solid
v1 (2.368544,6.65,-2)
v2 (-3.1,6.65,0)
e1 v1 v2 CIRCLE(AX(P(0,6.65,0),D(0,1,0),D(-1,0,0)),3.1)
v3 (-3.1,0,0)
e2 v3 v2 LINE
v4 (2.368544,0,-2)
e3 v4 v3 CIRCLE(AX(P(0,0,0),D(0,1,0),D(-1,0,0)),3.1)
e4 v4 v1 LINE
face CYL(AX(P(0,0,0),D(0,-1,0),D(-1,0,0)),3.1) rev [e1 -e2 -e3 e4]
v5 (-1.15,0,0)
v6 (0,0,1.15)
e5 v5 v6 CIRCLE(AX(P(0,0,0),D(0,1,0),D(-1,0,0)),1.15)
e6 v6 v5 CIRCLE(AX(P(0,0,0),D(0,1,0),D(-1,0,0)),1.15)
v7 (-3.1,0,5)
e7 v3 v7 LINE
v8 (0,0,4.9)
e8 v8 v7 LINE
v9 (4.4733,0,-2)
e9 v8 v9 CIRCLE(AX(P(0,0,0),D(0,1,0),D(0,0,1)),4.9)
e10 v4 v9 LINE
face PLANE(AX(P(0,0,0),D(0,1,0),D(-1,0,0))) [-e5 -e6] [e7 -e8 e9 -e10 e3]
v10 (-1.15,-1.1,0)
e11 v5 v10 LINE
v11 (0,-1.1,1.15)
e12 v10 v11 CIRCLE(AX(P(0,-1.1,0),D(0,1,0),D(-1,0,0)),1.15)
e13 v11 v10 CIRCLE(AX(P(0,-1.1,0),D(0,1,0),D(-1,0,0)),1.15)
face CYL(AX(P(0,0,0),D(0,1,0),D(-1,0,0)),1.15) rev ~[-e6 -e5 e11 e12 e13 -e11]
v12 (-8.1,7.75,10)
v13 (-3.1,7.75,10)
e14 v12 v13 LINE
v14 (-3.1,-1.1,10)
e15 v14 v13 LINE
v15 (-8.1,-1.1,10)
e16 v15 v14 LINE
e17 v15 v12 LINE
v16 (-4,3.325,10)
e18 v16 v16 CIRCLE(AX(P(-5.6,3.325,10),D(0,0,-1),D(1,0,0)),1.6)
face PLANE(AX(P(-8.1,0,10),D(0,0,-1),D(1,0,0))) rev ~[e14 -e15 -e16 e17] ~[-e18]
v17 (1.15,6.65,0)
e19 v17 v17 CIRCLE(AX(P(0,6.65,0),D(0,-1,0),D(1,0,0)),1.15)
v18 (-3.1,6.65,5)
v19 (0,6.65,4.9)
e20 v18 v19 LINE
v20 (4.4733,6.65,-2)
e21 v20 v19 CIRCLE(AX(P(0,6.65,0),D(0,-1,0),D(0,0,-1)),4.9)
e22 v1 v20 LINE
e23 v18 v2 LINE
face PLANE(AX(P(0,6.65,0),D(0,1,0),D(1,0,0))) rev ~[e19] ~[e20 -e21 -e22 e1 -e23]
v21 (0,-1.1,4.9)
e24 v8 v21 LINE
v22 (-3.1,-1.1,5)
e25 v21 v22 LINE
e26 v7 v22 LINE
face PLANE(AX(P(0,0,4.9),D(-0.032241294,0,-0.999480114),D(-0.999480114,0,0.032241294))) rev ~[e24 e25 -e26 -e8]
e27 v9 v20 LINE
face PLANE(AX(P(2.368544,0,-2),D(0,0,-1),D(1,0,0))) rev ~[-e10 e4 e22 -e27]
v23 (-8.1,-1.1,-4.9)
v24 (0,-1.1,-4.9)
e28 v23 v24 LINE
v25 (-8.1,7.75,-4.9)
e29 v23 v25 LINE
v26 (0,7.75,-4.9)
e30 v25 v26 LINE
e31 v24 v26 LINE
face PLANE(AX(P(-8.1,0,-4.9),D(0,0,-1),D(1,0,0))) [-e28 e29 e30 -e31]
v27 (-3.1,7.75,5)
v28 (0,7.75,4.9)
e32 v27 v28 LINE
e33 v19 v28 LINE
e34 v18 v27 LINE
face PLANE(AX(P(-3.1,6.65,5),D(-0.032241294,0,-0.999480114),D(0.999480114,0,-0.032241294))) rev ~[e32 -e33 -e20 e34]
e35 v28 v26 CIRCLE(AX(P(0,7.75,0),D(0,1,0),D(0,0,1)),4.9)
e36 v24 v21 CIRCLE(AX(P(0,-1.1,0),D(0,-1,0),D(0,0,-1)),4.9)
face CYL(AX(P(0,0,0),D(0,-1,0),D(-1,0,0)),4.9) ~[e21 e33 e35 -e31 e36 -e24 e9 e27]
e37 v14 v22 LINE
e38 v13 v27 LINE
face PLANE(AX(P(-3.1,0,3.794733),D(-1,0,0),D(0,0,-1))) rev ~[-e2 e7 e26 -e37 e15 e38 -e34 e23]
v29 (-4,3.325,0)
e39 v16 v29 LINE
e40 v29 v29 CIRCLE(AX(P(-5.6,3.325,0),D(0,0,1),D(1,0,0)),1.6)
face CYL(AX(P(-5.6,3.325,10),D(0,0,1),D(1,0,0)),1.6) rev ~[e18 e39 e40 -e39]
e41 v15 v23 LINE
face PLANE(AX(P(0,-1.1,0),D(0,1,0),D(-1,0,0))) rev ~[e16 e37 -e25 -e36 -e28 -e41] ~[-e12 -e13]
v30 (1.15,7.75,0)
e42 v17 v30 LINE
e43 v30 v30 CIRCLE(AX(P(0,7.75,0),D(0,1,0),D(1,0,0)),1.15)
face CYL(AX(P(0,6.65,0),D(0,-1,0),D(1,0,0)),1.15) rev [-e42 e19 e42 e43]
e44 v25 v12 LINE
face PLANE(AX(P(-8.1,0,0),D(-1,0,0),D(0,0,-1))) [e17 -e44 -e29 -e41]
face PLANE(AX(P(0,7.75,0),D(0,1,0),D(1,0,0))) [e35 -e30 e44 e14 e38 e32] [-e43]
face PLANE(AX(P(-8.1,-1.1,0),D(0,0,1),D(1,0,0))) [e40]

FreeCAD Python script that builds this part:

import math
import FreeCAD as App
import Part
import Sketcher
from FreeCAD import Vector
Q = App.Units.Quantity

doc = App.newDocument("Part")
body = doc.addObject("PartDesign::Body", "Body")

sketch1 = body.newObject("Sketcher::SketchObject", "Sketch")
sketch1.AttachmentSupport = (doc.getObject("XZ_Plane"), [""])
sketch1.MapMode = "FlatFace"
sketch1.addGeometry(Part.ArcOfCircle(Part.Circle(Vector(0, 0, 0), Vector(0, 0, 1), 4.9), math.radians(-90), math.radians(-24)), False)
sketch1.addGeometry(Part.LineSegment(Vector(0, -4.9, 0), Vector(-8.1, -4.9, 0)), False)
sketch1.addGeometry(Part.LineSegment(Vector(-8.1, -4.9, 0), Vector(-8.1, 10, 0)), False)
sketch1.addGeometry(Part.LineSegment(Vector(-8.1, 10, 0), Vector(-3.1, 10, 0)), False)
sketch1.addGeometry(Part.LineSegment(Vector(-3.1, 10, 0), Vector(-3.1, 0, 0)), False)
sketch1.addGeometry(Part.ArcOfCircle(Part.Circle(Vector(0, 0, 0), Vector(0, 0, 1), 3.1), math.radians(180), math.radians(320)), False)
sketch1.addGeometry(Part.LineSegment(Vector(2.4, -2, 0), Vector(4.5, -2, 0)), False)
sketch1.addConstraint(Sketcher.Constraint("Tangent", 0, 1, 1, 1))
sketch1.addConstraint(Sketcher.Constraint("Coincident", 1, 2, 2, 1))
sketch1.addConstraint(Sketcher.Constraint("Coincident", 2, 2, 3, 1))
sketch1.addConstraint(Sketcher.Constraint("Coincident", 3, 2, 4, 1))
sketch1.addConstraint(Sketcher.Constraint("Tangent", 4, 2, 5, 1))
sketch1.addConstraint(Sketcher.Constraint("Coincident", 5, 2, 6, 1))
sketch1.addConstraint(Sketcher.Constraint("Coincident", 6, 2, 0, 2))
sketch1.addConstraint(Sketcher.Constraint("Horizontal", 1))
sketch1.addConstraint(Sketcher.Constraint("Vertical", 2))
sketch1.addConstraint(Sketcher.Constraint("Horizontal", 3))
sketch1.addConstraint(Sketcher.Constraint("Vertical", 4))
sketch1.addConstraint(Sketcher.Constraint("Horizontal", 6))
sketch1.addConstraint(Sketcher.Constraint("Coincident", 0, 3, -1, 1))
sketch1.addConstraint(Sketcher.Constraint("Coincident", 5, 3, -1, 1))
sketch1.addConstraint(Sketcher.Constraint("Radius", 0, Q("4.9 mm")))
sketch1.addConstraint(Sketcher.Constraint("Radius", 5, Q("3.1 mm")))
sketch1.addConstraint(Sketcher.Constraint("DistanceX", 3, 1, 3, 2, Q("5 mm")))
sketch1.addConstraint(Sketcher.Constraint("DistanceY", 4, 2, 4, 1, Q("10 mm")))
sketch1.addConstraint(Sketcher.Constraint("DistanceY", 5, 2, -1, 1, Q("2 mm")))
pad1 = body.newObject("PartDesign::Pad", "Pad")
pad1.Profile = sketch1
pad1.Length = 6.65
pad1.Reversed = True

sketch2 = body.newObject("Sketcher::SketchObject", "Sketch001")
sketch2.AttachmentSupport = (doc.getObject("XZ_Plane"), [""])
sketch2.MapMode = "FlatFace"
sketch2.addGeometry(Part.LineSegment(Vector(0, -4.9, 0), Vector(-8.1, -4.9, 0)), False)
sketch2.addGeometry(Part.LineSegment(Vector(-8.1, -4.9, 0), Vector(-8.1, 10, 0)), False)
sketch2.addGeometry(Part.LineSegment(Vector(-8.1, 10, 0), Vector(-3.1, 10, 0)), False)
sketch2.addGeometry(Part.LineSegment(Vector(-3.1, 10, 0), Vector(-3.1, 5, 0)), False)
sketch2.addGeometry(Part.LineSegment(Vector(-3.1, 5, 0), Vector(0, 4.9, 0)), False)
sketch2.addGeometry(Part.ArcOfCircle(Part.Circle(Vector(0, 0, 0), Vector(0, 0, 1), 4.9), math.radians(-90), math.radians(90)), False)
sketch2.addGeometry(Part.Circle(Vector(0, 0, 0), Vector(0, 0, 1), 1.1), False)
sketch2.addConstraint(Sketcher.Constraint("Coincident", 0, 2, 1, 1))
sketch2.addConstraint(Sketcher.Constraint("Coincident", 1, 2, 2, 1))
sketch2.addConstraint(Sketcher.Constraint("Coincident", 2, 2, 3, 1))
sketch2.addConstraint(Sketcher.Constraint("Coincident", 3, 2, 4, 1))
sketch2.addConstraint(Sketcher.Constraint("Coincident", 4, 2, 5, 2))
sketch2.addConstraint(Sketcher.Constraint("Tangent", 5, 1, 0, 1))
sketch2.addConstraint(Sketcher.Constraint("Horizontal", 0))
sketch2.addConstraint(Sketcher.Constraint("Vertical", 1))
sketch2.addConstraint(Sketcher.Constraint("Horizontal", 2))
sketch2.addConstraint(Sketcher.Constraint("Vertical", 3))
sketch2.addConstraint(Sketcher.Constraint("Coincident", 5, 3, -1, 1))
sketch2.addConstraint(Sketcher.Constraint("Coincident", 6, 3, -1, 1))
sketch2.addConstraint(Sketcher.Constraint("PointOnObject", 4, 2, -2))
sketch2.addConstraint(Sketcher.Constraint("Equal", 2, 3))
sketch2.addConstraint(Sketcher.Constraint("Diameter", 6, Q("2.3 mm")))
sketch2.addConstraint(Sketcher.Constraint("Radius", 5, Q("4.9 mm")))
sketch2.addConstraint(Sketcher.Constraint("DistanceX", 2, 1, 2, 2, Q("5 mm")))
sketch2.addConstraint(Sketcher.Constraint("DistanceY", -1, 1, 1, 2, Q("10 mm")))
sketch2.addConstraint(Sketcher.Constraint("DistanceX", 0, 2, 0, 1, Q("8.1 mm")))
pad2 = body.newObject("PartDesign::Pad", "Pad001")
pad2.Profile = sketch2
pad2.Length = 1.1

sketch3 = body.newObject("Sketcher::SketchObject", "Sketch002")
sketch3.AttachmentSupport = (doc.getObject("XZ_Plane"), [""])
sketch3.MapMode = "FlatFace"
sketch3.AttachmentOffset = App.Placement(Vector(0, 0, -6.65), App.Rotation())
sketch3.addGeometry(Part.LineSegment(Vector(0, -4.9, 0), Vector(-8.1, -4.9, 0)), False)
sketch3.addGeometry(Part.LineSegment(Vector(-8.1, -4.9, 0), Vector(-8.1, 10, 0)), False)
sketch3.addGeometry(Part.LineSegment(Vector(-8.1, 10, 0), Vector(-3.1, 10, 0)), False)
sketch3.addGeometry(Part.LineSegment(Vector(-3.1, 10, 0), Vector(-3.1, 5, 0)), False)
sketch3.addGeometry(Part.LineSegment(Vector(-3.1, 5, 0), Vector(0, 4.9, 0)), False)
sketch3.addGeometry(Part.ArcOfCircle(Part.Circle(Vector(0, 0, 0), Vector(0, 0, 1), 4.9), math.radians(-90), math.radians(90)), False)
sketch3.addGeometry(Part.Circle(Vector(0, 0, 0), Vector(0, 0, 1), 1.1), False)
sketch3.addConstraint(Sketcher.Constraint("Coincident", 0, 2, 1, 1))
sketch3.addConstraint(Sketcher.Constraint("Coincident", 1, 2, 2, 1))
sketch3.addConstraint(Sketcher.Constraint("Coincident", 2, 2, 3, 1))
sketch3.addConstraint(Sketcher.Constraint("Coincident", 3, 2, 4, 1))
sketch3.addConstraint(Sketcher.Constraint("Coincident", 4, 2, 5, 2))
sketch3.addConstraint(Sketcher.Constraint("Tangent", 5, 1, 0, 1))
sketch3.addConstraint(Sketcher.Constraint("Horizontal", 0))
sketch3.addConstraint(Sketcher.Constraint("Vertical", 1))
sketch3.addConstraint(Sketcher.Constraint("Horizontal", 2))
sketch3.addConstraint(Sketcher.Constraint("Vertical", 3))
sketch3.addConstraint(Sketcher.Constraint("Coincident", 5, 3, -1, 1))
sketch3.addConstraint(Sketcher.Constraint("Coincident", 6, 3, -1, 1))
sketch3.addConstraint(Sketcher.Constraint("PointOnObject", 4, 2, -2))
sketch3.addConstraint(Sketcher.Constraint("Equal", 2, 3))
sketch3.addConstraint(Sketcher.Constraint("Diameter", 6, Q("2.3 mm")))
sketch3.addConstraint(Sketcher.Constraint("Radius", 5, Q("4.9 mm")))
sketch3.addConstraint(Sketcher.Constraint("DistanceX", 2, 1, 2, 2, Q("5 mm")))
sketch3.addConstraint(Sketcher.Constraint("DistanceY", -1, 1, 1, 2, Q("10 mm")))
sketch3.addConstraint(Sketcher.Constraint("DistanceX", 0, 2, 0, 1, Q("8.1 mm")))
pad3 = body.newObject("PartDesign::Pad", "Pad002")
pad3.Profile = sketch3
pad3.Length = 1.1
pad3.Reversed = True

sketch4 = body.newObject("Sketcher::SketchObject", "Sketch003")
sketch4.AttachmentSupport = (doc.getObject("XY_Plane"), [""])
sketch4.MapMode = "FlatFace"
sketch4.AttachmentOffset = App.Placement(Vector(0, 0, 10), App.Rotation())
sketch4.addGeometry(Part.Circle(Vector(-5.6, 3.3, 0), Vector(0, 0, 1), 1.6), False)
sketch4.addConstraint(Sketcher.Constraint("Diameter", 0, Q("3.2 mm")))
sketch4.addConstraint(Sketcher.Constraint("DistanceX", 0, 3, -1, 1, Q("5.6 mm")))
sketch4.addConstraint(Sketcher.Constraint("DistanceY", -1, 1, 0, 3, Q("3.325 mm")))
pocket1 = body.newObject("PartDesign::Pocket", "Pocket")
pocket1.Profile = sketch4
pocket1.Length = 10

doc.recompute()
